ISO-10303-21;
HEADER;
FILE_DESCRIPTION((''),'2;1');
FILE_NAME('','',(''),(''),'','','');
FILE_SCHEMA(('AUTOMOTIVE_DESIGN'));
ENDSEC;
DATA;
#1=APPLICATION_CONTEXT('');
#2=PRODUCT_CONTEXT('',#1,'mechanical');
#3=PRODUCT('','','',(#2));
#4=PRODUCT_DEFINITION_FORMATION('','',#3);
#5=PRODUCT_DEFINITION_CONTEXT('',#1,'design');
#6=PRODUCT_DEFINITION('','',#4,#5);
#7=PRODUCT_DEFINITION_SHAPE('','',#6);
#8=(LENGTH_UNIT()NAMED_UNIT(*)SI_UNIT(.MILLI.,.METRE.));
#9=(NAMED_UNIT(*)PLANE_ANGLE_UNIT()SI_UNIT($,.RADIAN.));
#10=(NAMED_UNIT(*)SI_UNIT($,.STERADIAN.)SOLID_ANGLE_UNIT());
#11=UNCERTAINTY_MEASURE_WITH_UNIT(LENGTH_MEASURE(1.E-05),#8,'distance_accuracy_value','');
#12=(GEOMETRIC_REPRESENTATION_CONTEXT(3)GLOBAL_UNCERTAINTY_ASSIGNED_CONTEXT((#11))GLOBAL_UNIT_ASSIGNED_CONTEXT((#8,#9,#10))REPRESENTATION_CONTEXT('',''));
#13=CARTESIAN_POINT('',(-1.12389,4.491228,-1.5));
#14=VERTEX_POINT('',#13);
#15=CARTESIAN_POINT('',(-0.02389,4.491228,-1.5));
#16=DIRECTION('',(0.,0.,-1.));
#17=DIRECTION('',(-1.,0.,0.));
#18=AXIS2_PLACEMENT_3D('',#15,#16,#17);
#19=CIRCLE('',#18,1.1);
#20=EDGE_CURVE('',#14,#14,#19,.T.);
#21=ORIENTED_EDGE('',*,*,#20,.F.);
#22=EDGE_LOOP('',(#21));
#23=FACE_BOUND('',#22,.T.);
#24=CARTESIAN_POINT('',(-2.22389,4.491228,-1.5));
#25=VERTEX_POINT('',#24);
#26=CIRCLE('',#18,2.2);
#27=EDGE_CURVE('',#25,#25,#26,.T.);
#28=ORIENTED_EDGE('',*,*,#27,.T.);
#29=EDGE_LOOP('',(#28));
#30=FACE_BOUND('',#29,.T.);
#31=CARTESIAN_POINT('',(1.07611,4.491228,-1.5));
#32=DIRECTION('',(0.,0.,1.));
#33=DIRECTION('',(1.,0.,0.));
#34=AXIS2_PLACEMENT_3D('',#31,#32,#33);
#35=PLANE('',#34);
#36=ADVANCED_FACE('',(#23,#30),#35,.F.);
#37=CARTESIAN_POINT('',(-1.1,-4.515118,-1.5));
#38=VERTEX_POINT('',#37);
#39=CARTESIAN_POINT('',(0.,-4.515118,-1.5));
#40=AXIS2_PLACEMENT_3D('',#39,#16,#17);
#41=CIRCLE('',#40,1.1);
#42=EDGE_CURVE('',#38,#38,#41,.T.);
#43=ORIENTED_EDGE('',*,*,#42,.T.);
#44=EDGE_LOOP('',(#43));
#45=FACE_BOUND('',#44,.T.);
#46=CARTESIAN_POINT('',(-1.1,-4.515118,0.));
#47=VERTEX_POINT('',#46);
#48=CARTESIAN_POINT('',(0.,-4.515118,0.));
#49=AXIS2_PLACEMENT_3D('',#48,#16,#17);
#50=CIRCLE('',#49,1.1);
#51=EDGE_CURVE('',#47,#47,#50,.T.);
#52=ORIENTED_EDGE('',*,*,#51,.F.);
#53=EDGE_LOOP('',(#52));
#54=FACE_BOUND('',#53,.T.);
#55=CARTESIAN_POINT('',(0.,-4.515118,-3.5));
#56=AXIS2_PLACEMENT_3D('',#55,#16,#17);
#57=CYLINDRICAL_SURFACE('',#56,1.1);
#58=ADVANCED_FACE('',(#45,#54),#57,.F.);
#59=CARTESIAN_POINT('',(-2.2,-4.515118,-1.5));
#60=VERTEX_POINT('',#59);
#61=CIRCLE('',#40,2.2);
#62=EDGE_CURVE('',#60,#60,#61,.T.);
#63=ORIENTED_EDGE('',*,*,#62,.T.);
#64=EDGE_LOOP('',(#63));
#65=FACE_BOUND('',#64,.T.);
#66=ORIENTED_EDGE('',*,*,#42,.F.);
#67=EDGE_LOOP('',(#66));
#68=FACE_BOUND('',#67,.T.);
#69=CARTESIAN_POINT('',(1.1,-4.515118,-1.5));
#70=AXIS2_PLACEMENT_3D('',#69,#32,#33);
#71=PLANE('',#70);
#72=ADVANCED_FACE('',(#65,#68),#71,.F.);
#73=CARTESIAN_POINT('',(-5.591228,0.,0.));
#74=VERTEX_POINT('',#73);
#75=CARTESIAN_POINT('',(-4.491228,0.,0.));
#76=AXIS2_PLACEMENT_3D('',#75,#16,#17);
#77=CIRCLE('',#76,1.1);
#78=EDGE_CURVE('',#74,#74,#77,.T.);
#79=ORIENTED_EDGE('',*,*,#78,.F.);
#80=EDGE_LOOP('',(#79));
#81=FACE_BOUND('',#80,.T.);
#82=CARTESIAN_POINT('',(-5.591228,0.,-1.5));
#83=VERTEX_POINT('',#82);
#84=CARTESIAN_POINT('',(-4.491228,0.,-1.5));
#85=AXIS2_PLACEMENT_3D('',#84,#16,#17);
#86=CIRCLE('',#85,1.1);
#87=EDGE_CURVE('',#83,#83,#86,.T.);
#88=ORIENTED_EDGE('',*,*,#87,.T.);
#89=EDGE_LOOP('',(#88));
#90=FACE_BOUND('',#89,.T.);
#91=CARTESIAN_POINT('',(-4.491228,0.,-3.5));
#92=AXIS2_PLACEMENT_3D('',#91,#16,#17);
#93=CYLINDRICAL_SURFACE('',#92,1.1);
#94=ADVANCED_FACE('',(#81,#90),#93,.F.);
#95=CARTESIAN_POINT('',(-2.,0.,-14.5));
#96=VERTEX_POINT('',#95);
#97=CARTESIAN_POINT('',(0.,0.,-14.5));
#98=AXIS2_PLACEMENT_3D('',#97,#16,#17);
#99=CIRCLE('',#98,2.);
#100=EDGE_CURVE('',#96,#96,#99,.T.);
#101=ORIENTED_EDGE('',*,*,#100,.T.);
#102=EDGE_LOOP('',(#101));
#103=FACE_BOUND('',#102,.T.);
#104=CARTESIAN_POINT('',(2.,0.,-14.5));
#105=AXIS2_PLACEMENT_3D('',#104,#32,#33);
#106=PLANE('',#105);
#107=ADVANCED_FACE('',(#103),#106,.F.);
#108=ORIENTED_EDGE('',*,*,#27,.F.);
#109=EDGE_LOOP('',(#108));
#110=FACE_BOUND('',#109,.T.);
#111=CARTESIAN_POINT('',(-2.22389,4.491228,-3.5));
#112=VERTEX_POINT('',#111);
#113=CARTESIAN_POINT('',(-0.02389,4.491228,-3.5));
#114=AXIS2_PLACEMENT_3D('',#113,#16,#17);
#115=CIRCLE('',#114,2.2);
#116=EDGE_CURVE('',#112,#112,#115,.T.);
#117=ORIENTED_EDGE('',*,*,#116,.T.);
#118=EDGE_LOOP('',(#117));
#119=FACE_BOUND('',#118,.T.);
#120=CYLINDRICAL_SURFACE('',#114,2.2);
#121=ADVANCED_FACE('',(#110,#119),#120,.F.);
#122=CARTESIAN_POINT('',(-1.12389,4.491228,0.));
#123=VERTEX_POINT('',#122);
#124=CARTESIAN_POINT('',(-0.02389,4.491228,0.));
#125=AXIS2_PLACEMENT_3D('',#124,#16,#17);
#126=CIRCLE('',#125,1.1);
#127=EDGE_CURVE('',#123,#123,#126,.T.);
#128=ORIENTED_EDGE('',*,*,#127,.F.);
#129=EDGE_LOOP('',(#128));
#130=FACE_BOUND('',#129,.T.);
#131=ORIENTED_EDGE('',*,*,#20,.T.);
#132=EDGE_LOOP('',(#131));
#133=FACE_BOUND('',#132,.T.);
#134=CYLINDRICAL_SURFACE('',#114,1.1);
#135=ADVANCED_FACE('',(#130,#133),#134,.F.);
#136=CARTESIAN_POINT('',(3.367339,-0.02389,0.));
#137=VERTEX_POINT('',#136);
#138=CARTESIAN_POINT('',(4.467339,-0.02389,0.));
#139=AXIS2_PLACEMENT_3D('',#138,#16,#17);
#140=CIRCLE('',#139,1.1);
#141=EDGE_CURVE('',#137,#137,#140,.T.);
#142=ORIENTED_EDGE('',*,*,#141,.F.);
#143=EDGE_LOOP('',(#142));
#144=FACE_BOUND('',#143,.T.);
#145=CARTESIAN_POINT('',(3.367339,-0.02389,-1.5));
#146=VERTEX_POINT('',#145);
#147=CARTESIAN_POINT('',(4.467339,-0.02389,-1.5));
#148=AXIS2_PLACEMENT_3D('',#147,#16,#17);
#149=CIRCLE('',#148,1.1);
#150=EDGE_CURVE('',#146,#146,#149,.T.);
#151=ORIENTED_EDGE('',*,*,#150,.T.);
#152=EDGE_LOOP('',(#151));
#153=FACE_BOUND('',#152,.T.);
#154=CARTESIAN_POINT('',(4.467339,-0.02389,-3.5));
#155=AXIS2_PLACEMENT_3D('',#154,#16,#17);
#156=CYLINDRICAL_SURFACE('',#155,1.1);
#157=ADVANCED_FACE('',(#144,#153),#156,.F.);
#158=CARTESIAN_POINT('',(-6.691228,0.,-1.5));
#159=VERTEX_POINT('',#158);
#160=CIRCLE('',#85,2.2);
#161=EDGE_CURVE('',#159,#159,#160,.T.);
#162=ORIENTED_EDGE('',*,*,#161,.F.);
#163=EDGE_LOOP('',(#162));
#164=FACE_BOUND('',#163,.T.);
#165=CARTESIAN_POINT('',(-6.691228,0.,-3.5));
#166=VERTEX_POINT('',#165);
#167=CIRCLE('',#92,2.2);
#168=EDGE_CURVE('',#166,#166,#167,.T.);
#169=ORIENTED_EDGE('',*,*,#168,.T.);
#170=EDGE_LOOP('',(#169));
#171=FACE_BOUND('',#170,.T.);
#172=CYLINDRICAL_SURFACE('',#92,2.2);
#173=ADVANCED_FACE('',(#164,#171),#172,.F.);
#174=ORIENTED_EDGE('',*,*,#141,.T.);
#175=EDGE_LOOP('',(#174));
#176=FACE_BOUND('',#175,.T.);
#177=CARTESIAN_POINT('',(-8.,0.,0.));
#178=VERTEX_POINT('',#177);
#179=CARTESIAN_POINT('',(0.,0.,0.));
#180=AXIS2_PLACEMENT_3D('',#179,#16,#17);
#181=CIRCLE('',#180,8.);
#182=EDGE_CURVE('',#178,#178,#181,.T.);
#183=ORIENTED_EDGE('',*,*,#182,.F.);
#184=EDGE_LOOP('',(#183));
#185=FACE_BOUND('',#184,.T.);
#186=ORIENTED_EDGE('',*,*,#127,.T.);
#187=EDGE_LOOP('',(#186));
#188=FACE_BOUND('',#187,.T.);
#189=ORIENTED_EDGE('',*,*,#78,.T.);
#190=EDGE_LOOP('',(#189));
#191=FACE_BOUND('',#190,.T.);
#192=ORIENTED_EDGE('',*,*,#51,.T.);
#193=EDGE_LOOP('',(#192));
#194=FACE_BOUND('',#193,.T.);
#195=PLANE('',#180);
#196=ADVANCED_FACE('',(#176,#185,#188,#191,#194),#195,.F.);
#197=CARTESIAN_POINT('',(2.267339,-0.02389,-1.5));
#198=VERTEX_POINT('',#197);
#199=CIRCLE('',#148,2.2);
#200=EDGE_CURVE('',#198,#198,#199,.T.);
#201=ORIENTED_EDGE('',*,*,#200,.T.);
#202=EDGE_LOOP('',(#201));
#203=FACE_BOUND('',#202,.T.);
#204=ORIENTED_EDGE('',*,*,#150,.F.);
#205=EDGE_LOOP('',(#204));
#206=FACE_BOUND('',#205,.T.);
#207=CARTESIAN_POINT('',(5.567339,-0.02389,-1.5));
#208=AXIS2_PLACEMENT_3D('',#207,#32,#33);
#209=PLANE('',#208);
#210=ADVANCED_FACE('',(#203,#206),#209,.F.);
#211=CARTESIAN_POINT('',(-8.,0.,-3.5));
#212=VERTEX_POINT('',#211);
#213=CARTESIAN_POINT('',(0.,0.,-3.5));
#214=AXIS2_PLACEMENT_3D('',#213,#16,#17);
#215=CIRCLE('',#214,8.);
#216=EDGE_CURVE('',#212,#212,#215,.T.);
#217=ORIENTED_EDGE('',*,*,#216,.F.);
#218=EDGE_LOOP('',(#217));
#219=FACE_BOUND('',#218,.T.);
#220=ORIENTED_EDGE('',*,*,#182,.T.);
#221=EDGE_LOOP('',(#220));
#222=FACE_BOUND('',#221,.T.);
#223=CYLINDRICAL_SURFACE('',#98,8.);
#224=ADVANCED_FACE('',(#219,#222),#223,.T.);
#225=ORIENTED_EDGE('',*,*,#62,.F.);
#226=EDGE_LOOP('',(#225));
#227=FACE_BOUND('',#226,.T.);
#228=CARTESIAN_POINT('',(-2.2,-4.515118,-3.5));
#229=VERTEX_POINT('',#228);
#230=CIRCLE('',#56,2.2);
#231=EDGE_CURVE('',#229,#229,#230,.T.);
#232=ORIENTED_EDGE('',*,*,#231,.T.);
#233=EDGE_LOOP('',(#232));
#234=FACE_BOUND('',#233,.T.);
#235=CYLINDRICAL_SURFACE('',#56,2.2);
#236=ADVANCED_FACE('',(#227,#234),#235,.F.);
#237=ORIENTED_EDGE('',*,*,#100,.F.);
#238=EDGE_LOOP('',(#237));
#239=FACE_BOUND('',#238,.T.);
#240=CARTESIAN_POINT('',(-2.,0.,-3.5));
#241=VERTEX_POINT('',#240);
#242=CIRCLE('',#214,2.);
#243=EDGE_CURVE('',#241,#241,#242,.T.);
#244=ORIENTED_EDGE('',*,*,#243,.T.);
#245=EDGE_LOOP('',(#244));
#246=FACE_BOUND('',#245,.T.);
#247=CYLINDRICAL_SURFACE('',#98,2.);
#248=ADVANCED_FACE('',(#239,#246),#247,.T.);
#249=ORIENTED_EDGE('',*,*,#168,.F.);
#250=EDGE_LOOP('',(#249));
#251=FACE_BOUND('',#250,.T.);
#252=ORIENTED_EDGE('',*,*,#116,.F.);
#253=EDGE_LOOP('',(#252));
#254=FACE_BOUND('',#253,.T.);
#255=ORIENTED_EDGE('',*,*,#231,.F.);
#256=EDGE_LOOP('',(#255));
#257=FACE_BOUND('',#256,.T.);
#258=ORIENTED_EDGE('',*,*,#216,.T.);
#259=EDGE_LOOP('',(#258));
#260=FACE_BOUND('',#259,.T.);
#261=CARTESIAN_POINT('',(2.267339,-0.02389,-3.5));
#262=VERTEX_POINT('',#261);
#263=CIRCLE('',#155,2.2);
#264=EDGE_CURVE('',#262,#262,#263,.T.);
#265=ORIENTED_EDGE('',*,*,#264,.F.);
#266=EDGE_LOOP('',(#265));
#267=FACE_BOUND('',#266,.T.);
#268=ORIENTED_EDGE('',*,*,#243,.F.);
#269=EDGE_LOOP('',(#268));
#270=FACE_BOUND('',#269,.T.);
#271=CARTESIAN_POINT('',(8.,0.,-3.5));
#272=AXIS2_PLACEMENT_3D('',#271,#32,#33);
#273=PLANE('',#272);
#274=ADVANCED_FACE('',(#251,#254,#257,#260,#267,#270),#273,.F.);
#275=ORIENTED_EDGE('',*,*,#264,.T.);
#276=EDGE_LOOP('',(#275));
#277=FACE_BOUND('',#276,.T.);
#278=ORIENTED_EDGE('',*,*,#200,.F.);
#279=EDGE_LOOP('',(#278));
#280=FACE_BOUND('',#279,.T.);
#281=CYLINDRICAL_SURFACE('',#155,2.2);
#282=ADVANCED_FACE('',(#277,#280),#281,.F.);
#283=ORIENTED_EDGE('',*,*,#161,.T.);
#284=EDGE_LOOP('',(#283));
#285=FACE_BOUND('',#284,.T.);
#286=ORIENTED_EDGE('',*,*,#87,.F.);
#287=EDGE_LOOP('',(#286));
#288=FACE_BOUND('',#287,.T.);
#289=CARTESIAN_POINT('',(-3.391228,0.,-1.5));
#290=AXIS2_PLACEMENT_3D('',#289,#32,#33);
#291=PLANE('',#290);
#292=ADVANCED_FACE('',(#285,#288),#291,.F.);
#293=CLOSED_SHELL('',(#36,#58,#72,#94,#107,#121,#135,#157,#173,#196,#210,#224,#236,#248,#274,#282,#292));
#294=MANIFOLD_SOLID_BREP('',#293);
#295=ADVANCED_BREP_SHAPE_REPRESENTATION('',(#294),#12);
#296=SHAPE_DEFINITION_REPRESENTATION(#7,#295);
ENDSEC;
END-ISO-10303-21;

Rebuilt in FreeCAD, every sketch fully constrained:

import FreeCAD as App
import Part
import Sketcher

V = App.Vector
Q = App.Units.Quantity

doc = App.newDocument("Part")
params = doc.addObject("Spreadsheet::Sheet", "Params")
for row, (alias, value) in enumerate([
    ("sketch1_width", "8 mm"),
    ("sketch1_width2", "6 mm"),
    ("sketch1_height", "11 mm"),
    ("sketch1_height2", "3.5 mm"),
    ("revolution_angle", "360 deg"),
    ("sketch2_diameter", "2.2 mm"),
    ("hole_diameter", "2.2 mm"),
    ("hole_cbore_diameter", "4.4 mm"),
    ("hole_cbore_depth", "2 mm"),
], start=1):
    params.set(f"A{row}", alias)
    params.set(f"B{row}", "=" + value)
    params.setAlias(f"B{row}", alias)

body = doc.addObject("PartDesign::Body", "Body")

# Sketch on XZ plane
sketch1 = body.newObject("Sketcher::SketchObject", "Sketch")
sketch1.AttachmentSupport = (doc.getObject("XZ_Plane"), [""])
sketch1.MapMode = "FlatFace"
sketch1.addGeometry(Part.LineSegment(V(0, 0, 0), V(8, 0, 0)), False)
sketch1.addGeometry(Part.LineSegment(V(8, 0, 0), V(8, -3.5, 0)), False)
sketch1.addGeometry(Part.LineSegment(V(8, -3.5, 0), V(2, -3.5, 0)), False)
sketch1.addGeometry(Part.LineSegment(V(2, -3.5, 0), V(2, -14.5, 0)), False)
sketch1.addGeometry(Part.LineSegment(V(2, -14.5, 0), V(0, -14.5, 0)), False)
sketch1.addGeometry(Part.LineSegment(V(0, -14.5, 0), V(0, 0, 0)), False)
sketch1.addConstraint(Sketcher.Constraint("Coincident", 0, 2, 1, 1))
sketch1.addConstraint(Sketcher.Constraint("Coincident", 1, 2, 2, 1))
sketch1.addConstraint(Sketcher.Constraint("Coincident", 2, 2, 3, 1))
sketch1.addConstraint(Sketcher.Constraint("Coincident", 3, 2, 4, 1))
sketch1.addConstraint(Sketcher.Constraint("Coincident", 4, 2, 5, 1))
sketch1.addConstraint(Sketcher.Constraint("Coincident", 5, 2, 0, 1))
sketch1.addConstraint(Sketcher.Constraint("Horizontal", 0))
sketch1.addConstraint(Sketcher.Constraint("Vertical", 1))
sketch1.addConstraint(Sketcher.Constraint("Horizontal", 2))
sketch1.addConstraint(Sketcher.Constraint("Vertical", 3))
sketch1.addConstraint(Sketcher.Constraint("Horizontal", 4))
sketch1.addConstraint(Sketcher.Constraint("Vertical", 5))
sketch1.addConstraint(Sketcher.Constraint("Coincident", 5, 2, -1, 1))
sketch1.addConstraint(Sketcher.Constraint("DistanceX", 0, 1, 0, 2, Q("8 mm")))
sketch1.addConstraint(Sketcher.Constraint("DistanceX", 2, 2, 2, 1, Q("6 mm")))
sketch1.addConstraint(Sketcher.Constraint("DistanceY", 3, 2, 3, 1, Q("11 mm")))
sketch1.addConstraint(Sketcher.Constraint("DistanceY", 1, 2, 1, 1, Q("3.5 mm")))
sketch1.setExpression("Constraints[13]", "Params.sketch1_width")
sketch1.setExpression("Constraints[14]", "Params.sketch1_width2")
sketch1.setExpression("Constraints[15]", "Params.sketch1_height")
sketch1.setExpression("Constraints[16]", "Params.sketch1_height2")
revolution = body.newObject("PartDesign::Revolution", "Revolution")
revolution.Profile = sketch1
revolution.ReferenceAxis = (sketch1, ["V_Axis"])
revolution.setExpression("Angle", "Params.revolution_angle")

# Sketch on XY plane
sketch2 = body.newObject("Sketcher::SketchObject", "Sketch001")
sketch2.AttachmentSupport = (doc.getObject("XY_Plane"), [""])
sketch2.MapMode = "FlatFace"
sketch2.AttachmentOffset = App.Placement(V(0, 0, -3.5), App.Rotation())
sketch2.addGeometry(Part.Circle(V(-4.491228, 0, 0), V(0, 0, 1), 1.1), False)
sketch2.addGeometry(Part.Circle(V(-0.02389, 4.491228, 0), V(0, 0, 1), 1.1), False)
sketch2.addGeometry(Part.Circle(V(4.467339, -0.02389, 0), V(0, 0, 1), 1.1), False)
sketch2.addGeometry(Part.Circle(V(0, -4.515118, 0), V(0, 0, 1), 1.1), False)
sketch2.addConstraint(Sketcher.Constraint("Equal", 0, 1))
sketch2.addConstraint(Sketcher.Constraint("Equal", 1, 2))
sketch2.addConstraint(Sketcher.Constraint("Equal", 2, 3))
sketch2.addConstraint(Sketcher.Constraint("PointOnObject", 0, 3, -1))
sketch2.addConstraint(Sketcher.Constraint("PointOnObject", 3, 3, -2))
sketch2.addConstraint(Sketcher.Constraint("Diameter", 0, Q("2.2 mm")))
sketch2.addConstraint(Sketcher.Constraint("DistanceX", 0, 3, -1, 1, Q("4.491228 mm")))
sketch2.addConstraint(Sketcher.Constraint("DistanceX", 1, 3, -1, 1, Q("0.02389 mm")))
sketch2.addConstraint(Sketcher.Constraint("DistanceY", -1, 1, 1, 3, Q("4.491228 mm")))
sketch2.addConstraint(Sketcher.Constraint("DistanceX", -1, 1, 2, 3, Q("4.467339 mm")))
sketch2.addConstraint(Sketcher.Constraint("DistanceY", 2, 3, -1, 1, Q("0.02389 mm")))
sketch2.addConstraint(Sketcher.Constraint("DistanceY", 3, 3, 2, 3, Q("4.491228 mm")))
sketch2.setExpression("Constraints[5]", "Params.sketch2_diameter")
doc.recompute()
hole = body.newObject("PartDesign::Hole", "Hole")
hole.Profile = sketch2
hole.ThreadType = "None"
hole.setExpression("Diameter", "Params.hole_diameter")
hole.DepthType = "ThroughAll"
hole.HoleCutType = "Counterbore"
hole.setExpression("HoleCutDiameter", "Params.hole_cbore_diameter")
hole.setExpression("HoleCutDepth", "Params.hole_cbore_depth")
hole.Reversed = True

doc.recompute()
